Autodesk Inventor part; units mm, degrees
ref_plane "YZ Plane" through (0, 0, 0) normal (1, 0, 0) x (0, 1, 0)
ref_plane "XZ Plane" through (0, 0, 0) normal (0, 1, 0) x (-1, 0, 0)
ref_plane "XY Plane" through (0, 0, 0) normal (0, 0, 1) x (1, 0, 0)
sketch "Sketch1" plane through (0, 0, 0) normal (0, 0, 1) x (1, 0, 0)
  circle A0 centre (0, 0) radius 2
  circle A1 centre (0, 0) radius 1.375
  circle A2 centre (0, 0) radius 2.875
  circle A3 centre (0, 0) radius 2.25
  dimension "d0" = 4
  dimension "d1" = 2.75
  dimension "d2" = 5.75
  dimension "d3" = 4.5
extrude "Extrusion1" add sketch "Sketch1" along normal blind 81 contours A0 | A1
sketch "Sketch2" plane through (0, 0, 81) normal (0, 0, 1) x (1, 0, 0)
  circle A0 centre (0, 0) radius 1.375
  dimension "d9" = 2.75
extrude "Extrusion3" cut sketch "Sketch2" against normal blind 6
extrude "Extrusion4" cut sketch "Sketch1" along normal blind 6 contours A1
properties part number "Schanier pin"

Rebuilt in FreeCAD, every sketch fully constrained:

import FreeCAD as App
import Part
import Sketcher
Q = App.Units.Quantity

doc = App.newDocument("Part")
body = doc.addObject("PartDesign::Body", "Body")

# Sketch on XY plane
sketch1 = body.newObject("Sketcher::SketchObject", "Sketch")
sketch1.AttachmentSupport = (doc.getObject("XY_Plane"), [""])
sketch1.MapMode = "FlatFace"
sketch1.addGeometry(Part.Circle(App.Vector(0, 0, 0), App.Vector(0, 0, 1), 2), False)
sketch1.addConstraint(Sketcher.Constraint("Coincident", 0, 3, -1, 1))
sketch1.addConstraint(Sketcher.Constraint("Diameter", 0, Q("4 mm")))
pad1 = body.newObject("PartDesign::Pad", "Pad")
pad1.Profile = sketch1
pad1.Length = 81

# Sketch on XY plane
sketch2 = body.newObject("Sketcher::SketchObject", "Sketch001")
sketch2.AttachmentSupport = (doc.getObject("XY_Plane"), [""])
sketch2.MapMode = "FlatFace"
sketch2.AttachmentOffset = App.Placement(App.Vector(0, 0, 81), App.Rotation())
sketch2.addGeometry(Part.Circle(App.Vector(0, 0, 0), App.Vector(0, 0, 1), 1.4), False)
sketch2.addConstraint(Sketcher.Constraint("Coincident", 0, 3, -1, 1))
sketch2.addConstraint(Sketcher.Constraint("Diameter", 0, Q("2.75 mm")))
pocket1 = body.newObject("PartDesign::Pocket", "Pocket")
pocket1.Profile = sketch2
pocket1.Length = 6

# Sketch on XY plane
sketch3 = body.newObject("Sketcher::SketchObject", "Sketch002")
sketch3.AttachmentSupport = (doc.getObject("XY_Plane"), [""])
sketch3.MapMode = "FlatFace"
sketch3.addGeometry(Part.Circle(App.Vector(0, 0, 0), App.Vector(0, 0, 1), 1.4), False)
sketch3.addConstraint(Sketcher.Constraint("Coincident", 0, 3, -1, 1))
sketch3.addConstraint(Sketcher.Constraint("Diameter", 0, Q("2.75 mm")))
pocket2 = body.newObject("PartDesign::Pocket", "Pocket001")
pocket2.Profile = sketch3
pocket2.Length = 6
pocket2.Reversed = True

doc.recompute()
